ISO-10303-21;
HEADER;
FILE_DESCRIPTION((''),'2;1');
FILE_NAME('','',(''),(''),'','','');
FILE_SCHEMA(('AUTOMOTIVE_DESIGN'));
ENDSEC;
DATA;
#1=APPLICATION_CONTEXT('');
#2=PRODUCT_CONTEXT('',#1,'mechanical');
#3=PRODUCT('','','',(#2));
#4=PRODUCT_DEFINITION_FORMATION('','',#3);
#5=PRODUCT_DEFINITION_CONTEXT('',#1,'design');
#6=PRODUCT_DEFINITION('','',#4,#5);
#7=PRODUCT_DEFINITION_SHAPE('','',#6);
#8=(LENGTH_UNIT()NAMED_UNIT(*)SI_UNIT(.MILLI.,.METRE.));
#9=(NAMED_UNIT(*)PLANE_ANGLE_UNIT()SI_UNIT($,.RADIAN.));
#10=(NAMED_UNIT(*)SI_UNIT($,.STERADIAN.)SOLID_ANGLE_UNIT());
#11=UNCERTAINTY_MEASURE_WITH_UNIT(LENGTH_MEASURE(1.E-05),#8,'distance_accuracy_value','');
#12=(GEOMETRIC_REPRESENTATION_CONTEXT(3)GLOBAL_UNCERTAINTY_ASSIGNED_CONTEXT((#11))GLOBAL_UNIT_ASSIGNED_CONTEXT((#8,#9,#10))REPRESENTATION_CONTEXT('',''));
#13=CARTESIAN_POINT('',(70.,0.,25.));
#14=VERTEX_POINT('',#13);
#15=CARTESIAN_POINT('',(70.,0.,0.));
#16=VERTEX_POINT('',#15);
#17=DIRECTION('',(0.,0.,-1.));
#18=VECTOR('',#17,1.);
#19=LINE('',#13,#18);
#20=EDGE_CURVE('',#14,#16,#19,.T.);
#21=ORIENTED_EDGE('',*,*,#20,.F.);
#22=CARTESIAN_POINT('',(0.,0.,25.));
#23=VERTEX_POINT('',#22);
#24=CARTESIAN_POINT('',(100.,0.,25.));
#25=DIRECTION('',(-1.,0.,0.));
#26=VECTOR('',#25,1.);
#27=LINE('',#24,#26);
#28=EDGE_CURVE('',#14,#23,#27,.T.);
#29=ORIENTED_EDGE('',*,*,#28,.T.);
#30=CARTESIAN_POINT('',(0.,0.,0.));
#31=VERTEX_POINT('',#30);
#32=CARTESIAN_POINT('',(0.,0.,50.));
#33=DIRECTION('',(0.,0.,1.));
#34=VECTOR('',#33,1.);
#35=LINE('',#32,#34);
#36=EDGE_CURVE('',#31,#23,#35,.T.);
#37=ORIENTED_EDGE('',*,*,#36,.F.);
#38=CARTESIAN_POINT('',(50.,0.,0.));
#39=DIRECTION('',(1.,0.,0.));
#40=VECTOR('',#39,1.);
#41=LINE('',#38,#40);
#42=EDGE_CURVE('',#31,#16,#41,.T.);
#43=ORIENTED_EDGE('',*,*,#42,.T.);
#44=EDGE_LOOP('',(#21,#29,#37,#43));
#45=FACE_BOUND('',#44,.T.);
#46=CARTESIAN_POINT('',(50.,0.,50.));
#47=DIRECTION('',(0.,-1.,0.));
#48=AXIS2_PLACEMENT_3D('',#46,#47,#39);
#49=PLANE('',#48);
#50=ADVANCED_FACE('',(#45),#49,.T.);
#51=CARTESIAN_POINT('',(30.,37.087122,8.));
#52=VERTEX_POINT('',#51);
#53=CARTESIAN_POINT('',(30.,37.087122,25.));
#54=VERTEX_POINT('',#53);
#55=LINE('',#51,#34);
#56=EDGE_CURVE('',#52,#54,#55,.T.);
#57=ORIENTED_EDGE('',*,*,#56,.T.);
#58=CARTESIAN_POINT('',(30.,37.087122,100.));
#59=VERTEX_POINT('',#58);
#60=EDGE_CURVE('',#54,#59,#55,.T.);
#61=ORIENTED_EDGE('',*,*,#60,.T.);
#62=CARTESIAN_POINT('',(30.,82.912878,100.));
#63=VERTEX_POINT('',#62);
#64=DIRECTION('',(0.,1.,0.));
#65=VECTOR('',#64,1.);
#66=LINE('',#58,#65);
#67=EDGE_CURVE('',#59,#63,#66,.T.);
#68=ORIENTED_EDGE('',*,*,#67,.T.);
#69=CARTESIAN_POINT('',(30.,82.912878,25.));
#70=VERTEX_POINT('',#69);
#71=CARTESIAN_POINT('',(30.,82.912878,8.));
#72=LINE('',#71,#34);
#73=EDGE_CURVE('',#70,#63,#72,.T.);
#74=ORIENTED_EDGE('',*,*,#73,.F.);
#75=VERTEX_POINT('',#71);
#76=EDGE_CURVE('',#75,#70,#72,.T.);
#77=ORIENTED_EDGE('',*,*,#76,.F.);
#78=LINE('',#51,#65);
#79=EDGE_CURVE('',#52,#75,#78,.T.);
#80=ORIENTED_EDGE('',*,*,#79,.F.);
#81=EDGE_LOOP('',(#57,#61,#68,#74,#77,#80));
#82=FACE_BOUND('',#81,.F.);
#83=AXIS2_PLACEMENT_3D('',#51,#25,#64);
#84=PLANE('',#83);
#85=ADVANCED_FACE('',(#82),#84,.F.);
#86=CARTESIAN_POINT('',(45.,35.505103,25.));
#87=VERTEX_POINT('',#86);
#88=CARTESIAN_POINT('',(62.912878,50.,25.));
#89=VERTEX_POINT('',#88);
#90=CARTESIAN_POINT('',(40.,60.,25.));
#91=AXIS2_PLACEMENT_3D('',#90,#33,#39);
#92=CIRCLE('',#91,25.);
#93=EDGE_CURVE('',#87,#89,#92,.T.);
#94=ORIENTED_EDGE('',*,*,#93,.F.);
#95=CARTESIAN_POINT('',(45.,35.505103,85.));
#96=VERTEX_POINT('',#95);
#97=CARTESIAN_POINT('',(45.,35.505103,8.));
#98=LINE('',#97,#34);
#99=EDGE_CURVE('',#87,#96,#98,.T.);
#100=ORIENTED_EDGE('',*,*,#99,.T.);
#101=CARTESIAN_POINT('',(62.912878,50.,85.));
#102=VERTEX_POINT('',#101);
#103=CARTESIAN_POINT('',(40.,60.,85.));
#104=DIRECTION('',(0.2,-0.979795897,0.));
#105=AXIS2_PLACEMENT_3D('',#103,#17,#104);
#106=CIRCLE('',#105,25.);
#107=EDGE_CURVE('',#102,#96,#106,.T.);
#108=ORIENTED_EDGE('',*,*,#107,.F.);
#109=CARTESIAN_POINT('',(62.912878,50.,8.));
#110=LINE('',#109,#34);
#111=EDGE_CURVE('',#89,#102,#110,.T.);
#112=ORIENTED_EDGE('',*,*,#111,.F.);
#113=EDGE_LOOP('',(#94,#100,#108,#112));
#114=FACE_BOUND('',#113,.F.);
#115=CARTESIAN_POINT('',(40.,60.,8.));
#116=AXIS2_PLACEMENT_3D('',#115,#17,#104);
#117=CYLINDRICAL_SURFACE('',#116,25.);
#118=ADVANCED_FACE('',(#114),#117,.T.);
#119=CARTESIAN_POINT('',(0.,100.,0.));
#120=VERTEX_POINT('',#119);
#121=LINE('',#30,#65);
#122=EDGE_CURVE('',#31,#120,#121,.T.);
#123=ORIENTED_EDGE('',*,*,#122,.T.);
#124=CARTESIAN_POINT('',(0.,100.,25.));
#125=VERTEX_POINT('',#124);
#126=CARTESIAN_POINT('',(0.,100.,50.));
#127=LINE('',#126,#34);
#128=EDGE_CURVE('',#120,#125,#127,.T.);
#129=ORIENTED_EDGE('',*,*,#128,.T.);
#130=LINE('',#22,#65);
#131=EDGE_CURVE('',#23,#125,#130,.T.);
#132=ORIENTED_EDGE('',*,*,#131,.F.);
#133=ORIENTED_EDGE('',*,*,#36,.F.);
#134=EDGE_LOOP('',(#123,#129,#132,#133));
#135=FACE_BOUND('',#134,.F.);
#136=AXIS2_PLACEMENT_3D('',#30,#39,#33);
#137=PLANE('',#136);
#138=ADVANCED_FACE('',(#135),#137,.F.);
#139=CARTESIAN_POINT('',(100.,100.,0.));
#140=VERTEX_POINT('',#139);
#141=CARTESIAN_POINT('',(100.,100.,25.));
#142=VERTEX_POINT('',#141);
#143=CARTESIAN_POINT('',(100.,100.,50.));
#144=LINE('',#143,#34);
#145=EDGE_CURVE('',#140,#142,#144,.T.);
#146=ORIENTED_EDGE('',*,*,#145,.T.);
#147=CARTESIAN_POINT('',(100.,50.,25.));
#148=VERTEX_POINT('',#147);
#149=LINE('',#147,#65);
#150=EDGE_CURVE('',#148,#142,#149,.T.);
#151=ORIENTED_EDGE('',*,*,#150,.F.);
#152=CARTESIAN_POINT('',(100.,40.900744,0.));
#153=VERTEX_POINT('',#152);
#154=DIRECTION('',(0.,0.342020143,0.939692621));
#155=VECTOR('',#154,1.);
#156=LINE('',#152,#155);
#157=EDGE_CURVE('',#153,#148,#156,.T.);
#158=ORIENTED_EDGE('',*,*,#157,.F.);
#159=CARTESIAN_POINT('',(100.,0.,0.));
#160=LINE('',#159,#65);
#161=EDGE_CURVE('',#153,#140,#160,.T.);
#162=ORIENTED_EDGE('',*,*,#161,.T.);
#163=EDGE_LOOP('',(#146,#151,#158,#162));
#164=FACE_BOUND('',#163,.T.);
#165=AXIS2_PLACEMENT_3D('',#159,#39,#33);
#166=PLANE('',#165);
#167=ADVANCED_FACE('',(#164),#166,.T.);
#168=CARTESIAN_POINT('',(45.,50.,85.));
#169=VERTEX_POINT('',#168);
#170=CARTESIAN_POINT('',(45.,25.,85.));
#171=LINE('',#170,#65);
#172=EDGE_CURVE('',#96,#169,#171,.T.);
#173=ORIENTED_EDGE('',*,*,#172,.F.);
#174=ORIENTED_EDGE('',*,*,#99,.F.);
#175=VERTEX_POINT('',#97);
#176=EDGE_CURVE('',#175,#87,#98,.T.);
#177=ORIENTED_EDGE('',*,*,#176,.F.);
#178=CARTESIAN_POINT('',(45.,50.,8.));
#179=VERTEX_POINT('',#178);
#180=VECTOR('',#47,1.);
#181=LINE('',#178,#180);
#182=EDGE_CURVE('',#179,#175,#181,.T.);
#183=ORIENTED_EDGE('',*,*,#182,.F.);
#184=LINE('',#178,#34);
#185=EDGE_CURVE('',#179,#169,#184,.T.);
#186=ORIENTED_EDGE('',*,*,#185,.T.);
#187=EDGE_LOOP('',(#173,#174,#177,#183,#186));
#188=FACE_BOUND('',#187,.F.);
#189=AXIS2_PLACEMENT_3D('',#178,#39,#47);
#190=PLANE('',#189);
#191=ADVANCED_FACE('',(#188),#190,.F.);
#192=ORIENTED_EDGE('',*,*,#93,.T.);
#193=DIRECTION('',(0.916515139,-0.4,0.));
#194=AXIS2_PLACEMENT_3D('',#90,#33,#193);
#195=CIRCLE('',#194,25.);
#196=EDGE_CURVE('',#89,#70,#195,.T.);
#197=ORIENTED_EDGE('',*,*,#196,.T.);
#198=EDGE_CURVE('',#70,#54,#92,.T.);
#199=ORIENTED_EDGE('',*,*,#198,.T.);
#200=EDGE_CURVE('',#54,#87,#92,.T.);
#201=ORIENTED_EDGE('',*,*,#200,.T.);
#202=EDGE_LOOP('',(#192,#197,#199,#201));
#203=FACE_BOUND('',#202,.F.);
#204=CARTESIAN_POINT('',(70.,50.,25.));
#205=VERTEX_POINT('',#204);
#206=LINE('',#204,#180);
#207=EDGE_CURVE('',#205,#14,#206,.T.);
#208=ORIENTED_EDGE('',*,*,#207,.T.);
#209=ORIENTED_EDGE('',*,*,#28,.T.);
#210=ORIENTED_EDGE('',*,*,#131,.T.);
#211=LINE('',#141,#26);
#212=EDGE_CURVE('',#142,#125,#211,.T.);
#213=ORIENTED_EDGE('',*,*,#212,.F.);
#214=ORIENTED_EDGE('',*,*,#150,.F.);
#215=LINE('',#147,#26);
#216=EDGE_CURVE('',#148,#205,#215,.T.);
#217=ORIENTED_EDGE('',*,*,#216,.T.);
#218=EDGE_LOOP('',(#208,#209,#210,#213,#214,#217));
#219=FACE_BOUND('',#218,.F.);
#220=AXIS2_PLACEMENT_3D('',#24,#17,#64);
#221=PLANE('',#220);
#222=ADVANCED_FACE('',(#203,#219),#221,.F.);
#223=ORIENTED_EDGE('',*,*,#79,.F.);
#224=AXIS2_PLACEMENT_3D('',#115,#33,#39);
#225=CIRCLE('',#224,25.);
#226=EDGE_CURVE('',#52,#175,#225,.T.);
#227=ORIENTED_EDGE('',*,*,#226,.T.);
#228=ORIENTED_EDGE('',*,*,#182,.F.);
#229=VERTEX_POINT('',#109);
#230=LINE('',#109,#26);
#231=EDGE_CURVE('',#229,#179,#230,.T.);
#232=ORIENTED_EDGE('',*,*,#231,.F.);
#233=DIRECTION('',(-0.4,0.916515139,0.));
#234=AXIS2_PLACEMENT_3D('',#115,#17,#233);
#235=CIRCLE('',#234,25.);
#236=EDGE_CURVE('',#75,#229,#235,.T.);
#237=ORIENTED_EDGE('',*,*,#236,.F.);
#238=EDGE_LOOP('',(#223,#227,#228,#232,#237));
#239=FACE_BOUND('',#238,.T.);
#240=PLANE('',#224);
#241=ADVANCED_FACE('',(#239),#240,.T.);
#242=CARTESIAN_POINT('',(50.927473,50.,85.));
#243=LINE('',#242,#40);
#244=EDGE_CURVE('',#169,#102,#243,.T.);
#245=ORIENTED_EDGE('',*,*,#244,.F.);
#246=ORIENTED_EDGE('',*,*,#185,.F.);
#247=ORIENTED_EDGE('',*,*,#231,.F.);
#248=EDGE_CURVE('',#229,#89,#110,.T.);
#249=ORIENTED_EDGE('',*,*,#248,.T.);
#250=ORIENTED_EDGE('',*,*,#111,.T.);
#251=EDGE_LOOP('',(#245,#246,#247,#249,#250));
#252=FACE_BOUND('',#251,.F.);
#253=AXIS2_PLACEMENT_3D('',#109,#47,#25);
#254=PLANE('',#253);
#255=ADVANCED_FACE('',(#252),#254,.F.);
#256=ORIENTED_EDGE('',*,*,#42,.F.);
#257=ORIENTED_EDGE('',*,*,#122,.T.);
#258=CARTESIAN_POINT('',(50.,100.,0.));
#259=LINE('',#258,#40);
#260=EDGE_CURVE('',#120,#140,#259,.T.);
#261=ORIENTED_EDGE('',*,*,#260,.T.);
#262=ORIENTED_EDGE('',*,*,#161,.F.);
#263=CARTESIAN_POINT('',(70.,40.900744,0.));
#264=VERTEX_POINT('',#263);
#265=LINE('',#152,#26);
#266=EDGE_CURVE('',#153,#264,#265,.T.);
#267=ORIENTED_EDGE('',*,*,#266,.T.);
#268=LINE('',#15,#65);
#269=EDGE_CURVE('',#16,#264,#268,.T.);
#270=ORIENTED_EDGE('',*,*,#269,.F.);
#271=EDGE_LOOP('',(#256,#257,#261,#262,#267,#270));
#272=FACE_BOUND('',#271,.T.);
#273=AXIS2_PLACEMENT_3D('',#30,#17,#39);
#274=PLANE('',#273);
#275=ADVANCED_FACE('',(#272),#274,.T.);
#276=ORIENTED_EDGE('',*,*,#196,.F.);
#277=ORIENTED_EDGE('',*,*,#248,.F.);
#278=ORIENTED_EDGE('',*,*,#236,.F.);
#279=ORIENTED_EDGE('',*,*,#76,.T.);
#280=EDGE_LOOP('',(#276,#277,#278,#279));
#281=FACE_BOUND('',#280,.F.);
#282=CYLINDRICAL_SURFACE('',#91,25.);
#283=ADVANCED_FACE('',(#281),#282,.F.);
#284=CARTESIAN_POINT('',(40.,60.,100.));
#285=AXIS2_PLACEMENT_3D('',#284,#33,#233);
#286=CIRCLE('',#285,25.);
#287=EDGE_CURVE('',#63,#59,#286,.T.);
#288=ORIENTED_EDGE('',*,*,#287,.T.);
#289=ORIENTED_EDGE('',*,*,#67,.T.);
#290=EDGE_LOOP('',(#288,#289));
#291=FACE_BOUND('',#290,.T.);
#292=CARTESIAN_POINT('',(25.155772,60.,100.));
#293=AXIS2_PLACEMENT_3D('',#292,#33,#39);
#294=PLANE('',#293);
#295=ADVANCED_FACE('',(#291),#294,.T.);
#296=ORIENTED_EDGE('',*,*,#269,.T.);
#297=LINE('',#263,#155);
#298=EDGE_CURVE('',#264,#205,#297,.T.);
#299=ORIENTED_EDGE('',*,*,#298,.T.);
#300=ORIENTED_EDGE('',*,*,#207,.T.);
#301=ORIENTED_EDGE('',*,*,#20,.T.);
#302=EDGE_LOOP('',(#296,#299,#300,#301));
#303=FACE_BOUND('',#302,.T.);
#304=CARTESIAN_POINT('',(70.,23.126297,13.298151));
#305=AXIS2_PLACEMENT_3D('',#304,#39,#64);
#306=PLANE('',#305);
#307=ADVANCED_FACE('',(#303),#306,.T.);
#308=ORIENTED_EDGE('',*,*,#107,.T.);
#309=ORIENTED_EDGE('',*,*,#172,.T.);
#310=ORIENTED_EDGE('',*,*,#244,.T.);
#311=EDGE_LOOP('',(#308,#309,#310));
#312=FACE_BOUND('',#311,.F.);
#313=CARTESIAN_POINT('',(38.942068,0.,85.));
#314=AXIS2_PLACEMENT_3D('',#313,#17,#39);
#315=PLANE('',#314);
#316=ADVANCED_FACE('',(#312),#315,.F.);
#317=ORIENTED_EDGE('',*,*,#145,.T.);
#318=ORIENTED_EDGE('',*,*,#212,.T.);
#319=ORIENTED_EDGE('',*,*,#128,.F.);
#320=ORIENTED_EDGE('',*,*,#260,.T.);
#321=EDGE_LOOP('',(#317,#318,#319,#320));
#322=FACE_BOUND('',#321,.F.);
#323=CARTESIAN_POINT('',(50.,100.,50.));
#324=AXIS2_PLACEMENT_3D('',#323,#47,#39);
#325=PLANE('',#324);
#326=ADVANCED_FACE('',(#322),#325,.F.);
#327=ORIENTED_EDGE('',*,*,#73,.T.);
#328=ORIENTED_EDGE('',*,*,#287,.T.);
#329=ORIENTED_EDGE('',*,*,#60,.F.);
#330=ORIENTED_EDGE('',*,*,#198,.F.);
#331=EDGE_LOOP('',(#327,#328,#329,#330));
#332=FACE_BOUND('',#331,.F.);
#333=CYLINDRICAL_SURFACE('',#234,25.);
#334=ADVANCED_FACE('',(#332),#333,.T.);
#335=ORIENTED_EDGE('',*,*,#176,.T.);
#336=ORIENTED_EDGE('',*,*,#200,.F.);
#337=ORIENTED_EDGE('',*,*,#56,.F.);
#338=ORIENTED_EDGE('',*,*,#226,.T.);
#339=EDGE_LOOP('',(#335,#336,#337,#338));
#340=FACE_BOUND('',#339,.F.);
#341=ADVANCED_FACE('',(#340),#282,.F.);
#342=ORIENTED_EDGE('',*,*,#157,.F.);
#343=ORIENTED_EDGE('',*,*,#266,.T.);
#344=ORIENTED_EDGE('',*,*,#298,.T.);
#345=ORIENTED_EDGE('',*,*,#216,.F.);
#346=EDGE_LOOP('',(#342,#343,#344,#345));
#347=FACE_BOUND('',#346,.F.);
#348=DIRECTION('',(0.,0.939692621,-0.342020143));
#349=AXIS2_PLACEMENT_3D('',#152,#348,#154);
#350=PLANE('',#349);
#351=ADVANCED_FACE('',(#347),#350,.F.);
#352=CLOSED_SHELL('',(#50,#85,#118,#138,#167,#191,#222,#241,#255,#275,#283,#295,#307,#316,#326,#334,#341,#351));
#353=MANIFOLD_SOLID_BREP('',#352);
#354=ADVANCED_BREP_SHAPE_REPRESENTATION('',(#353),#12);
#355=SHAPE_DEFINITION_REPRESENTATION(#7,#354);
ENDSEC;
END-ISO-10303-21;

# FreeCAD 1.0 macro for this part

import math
import FreeCAD as App
import Part
import Sketcher
Q = App.Units.Quantity

doc = App.newDocument("Part")
body = doc.addObject("PartDesign::Body", "Body")

# Sketch on XZ plane
sketch1 = body.newObject("Sketcher::SketchObject", "Sketch")
sketch1.AttachmentSupport = (doc.getObject("XZ_Plane"), [""])
sketch1.MapMode = "FlatFace"
sketch1.addGeometry([
    Part.LineSegment(App.Vector(0, 100, 0), App.Vector(0, 0, 0)),
    Part.LineSegment(App.Vector(0, 0, 0), App.Vector(100, 0, 0)),
    Part.LineSegment(App.Vector(100, 0, 0), App.Vector(100, 100, 0)),
    Part.LineSegment(App.Vector(100, 100, 0), App.Vector(0, 100, 0)),
], False)
sketch1.addConstraint([
    Sketcher.Constraint("Coincident", 0, 2, 1, 1),
    Sketcher.Constraint("Coincident", 1, 2, 2, 1),
    Sketcher.Constraint("Coincident", 2, 2, 3, 1),
    Sketcher.Constraint("Coincident", 3, 2, 0, 1),
    Sketcher.Constraint("Vertical", 0),
    Sketcher.Constraint("Horizontal", 1),
    Sketcher.Constraint("Vertical", 2),
    Sketcher.Constraint("Horizontal", 3),
    Sketcher.Constraint("Coincident", 0, 2, -1, 1),
    Sketcher.Constraint("Equal", 3, 0),
    Sketcher.Constraint("DistanceX", 1, 1, 1, 2, 100.0),
])
pad1 = body.newObject("PartDesign::Pad", "Pad")
pad1.Profile = sketch1
pad1.Length = 100
pad1.Reversed = True

# Sketch on YZ plane
sketch2 = body.newObject("Sketcher::SketchObject", "Sketch001")
sketch2.AttachmentSupport = (doc.getObject("YZ_Plane"), [""])
sketch2.MapMode = "FlatFace"
sketch2.AttachmentOffset = App.Placement(App.Vector(0, 0, 100), App.Rotation())
sketch2.addGeometry([
    Part.LineSegment(App.Vector(0, 100, 0), App.Vector(0, 25, 0)),
    Part.LineSegment(App.Vector(0, 25, 0), App.Vector(100, 25, 0)),
    Part.LineSegment(App.Vector(100, 25, 0), App.Vector(100, 100, 0)),
    Part.LineSegment(App.Vector(100, 100, 0), App.Vector(0, 100, 0)),
], False)
sketch2.addConstraint([
    Sketcher.Constraint("Coincident", 0, 2, 1, 1),
    Sketcher.Constraint("Coincident", 1, 2, 2, 1),
    Sketcher.Constraint("Coincident", 2, 2, 3, 1),
    Sketcher.Constraint("Coincident", 3, 2, 0, 1),
    Sketcher.Constraint("Vertical", 0),
    Sketcher.Constraint("Horizontal", 1),
    Sketcher.Constraint("Vertical", 2),
    Sketcher.Constraint("Horizontal", 3),
    Sketcher.Constraint("PointOnObject", 0, 2, -2),
    Sketcher.Constraint("DistanceX", 1, 1, 1, 2, 100.0),
    Sketcher.Constraint("DistanceY", 0, 2, 0, 1, 75.0),
    Sketcher.Constraint("DistanceY", -1, 1, 0, 2, 25.0),
])
pocket1 = body.newObject("PartDesign::Pocket", "Pocket")
pocket1.Profile = sketch2
pocket1.Type = "ThroughAll"

# Sketch on XY plane
sketch3 = body.newObject("Sketcher::SketchObject", "Sketch002")
sketch3.AttachmentSupport = (doc.getObject("XY_Plane"), [""])
sketch3.MapMode = "FlatFace"
sketch3.AttachmentOffset = App.Placement(App.Vector(0, 0, 25), App.Rotation())
sketch3.addGeometry(Part.Circle(App.Vector(40, 60, 0), App.Vector(0, 0, 1), 25), False)
sketch3.addConstraint([
    Sketcher.Constraint("Diameter", 0, 50.0),
    Sketcher.Constraint("DistanceX", -1, 1, 0, 3, 40.0),
    Sketcher.Constraint("DistanceY", -1, 1, 0, 3, 60.0),
])
pocket2 = body.newObject("PartDesign::Pocket", "Pocket001")
pocket2.Profile = sketch3
pocket2.Length = 17

# Sketch on XY plane
sketch4 = body.newObject("Sketcher::SketchObject", "Sketch003")
sketch4.AttachmentSupport = (doc.getObject("XY_Plane"), [""])
sketch4.MapMode = "FlatFace"
sketch4.AttachmentOffset = App.Placement(App.Vector(0, 0, 8), App.Rotation())
sketch4.addGeometry([
    Part.LineSegment(App.Vector(30, 37.087122, 0), App.Vector(30, 82.912878, 0)),  # 0
    Part.ArcOfCircle(Part.Circle(App.Vector(40, 60, 0), App.Vector(0, 0, 1), 25), math.radians(113.578178), math.radians(246.421822)),  # 1
    Part.LineSegment(App.Vector(62.912878, 50, 0), App.Vector(45, 50, 0)),  # 2
    Part.LineSegment(App.Vector(45, 50, 0), App.Vector(45, 35.505103, 0)),  # 3
    Part.ArcOfCircle(Part.Circle(App.Vector(40, 60, 0), App.Vector(0, 0, 1), 25), math.radians(-78.463041), math.radians(-23.578178)),  # 4
], False)
sketch4.addConstraint([
    Sketcher.Constraint("Coincident", 0, 1, 1, 2),
    Sketcher.Constraint("Coincident", 1, 1, 0, 2),
    Sketcher.Constraint("Coincident", 2, 2, 3, 1),
    Sketcher.Constraint("Coincident", 3, 2, 4, 1),
    Sketcher.Constraint("Coincident", 4, 2, 2, 1),
    Sketcher.Constraint("Vertical", 0),
    Sketcher.Constraint("Horizontal", 2),
    Sketcher.Constraint("Vertical", 3),
    Sketcher.Constraint("Coincident", 4, 3, 1, 3),
    Sketcher.Constraint("Equal", 1, 4),
    Sketcher.Constraint("Radius", 1, 25.0),
    Sketcher.Constraint("DistanceX", -1, 1, 1, 3, 40.0),
    Sketcher.Constraint("DistanceY", -1, 1, 1, 3, 60.0),
    Sketcher.Constraint("DistanceX", -1, 1, 0, 1, 30.0),
    Sketcher.Constraint("DistanceX", -1, 1, 2, 2, 45.0),
    Sketcher.Constraint("DistanceY", -1, 1, 2, 2, 50.0),
])
pad2 = body.newObject("PartDesign::Pad", "Pad001")
pad2.Profile = sketch4
pad2.Length = 92

# Sketch on XZ plane
sketch5 = body.newObject("Sketcher::SketchObject", "Sketch004")
sketch5.AttachmentSupport = (doc.getObject("XZ_Plane"), [""])
sketch5.MapMode = "FlatFace"
sketch5.addGeometry([
    Part.LineSegment(App.Vector(38.942068, 117.923024, 0), App.Vector(38.942068, 85, 0)),
    Part.LineSegment(App.Vector(38.942068, 85, 0), App.Vector(69.711254, 85, 0)),
    Part.LineSegment(App.Vector(69.711254, 85, 0), App.Vector(69.711254, 117.923024, 0)),
    Part.LineSegment(App.Vector(69.711254, 117.923024, 0), App.Vector(38.942068, 117.923024, 0)),
], False)
sketch5.addConstraint([
    Sketcher.Constraint("Coincident", 0, 2, 1, 1),
    Sketcher.Constraint("Coincident", 1, 2, 2, 1),
    Sketcher.Constraint("Coincident", 2, 2, 3, 1),
    Sketcher.Constraint("Coincident", 3, 2, 0, 1),
    Sketcher.Constraint("Vertical", 0),
    Sketcher.Constraint("Horizontal", 1),
    Sketcher.Constraint("Vertical", 2),
    Sketcher.Constraint("Horizontal", 3),
    Sketcher.Constraint("DistanceY", -1, 1, 0, 2, 85.0),
    Sketcher.Constraint("DistanceX", 1, 1, 1, 2, 30.769187),
    Sketcher.Constraint("DistanceY", 0, 2, 0, 1, 32.923024),
    Sketcher.Constraint("DistanceX", -1, 1, 0, 2, 38.942068),
])
pocket3 = body.newObject("PartDesign::Pocket", "Pocket002")
pocket3.Profile = sketch5
pocket3.Type = "ThroughAll"

# Sketch on YZ plane
sketch6 = body.newObject("Sketcher::SketchObject", "Sketch005")
sketch6.AttachmentSupport = (doc.getObject("YZ_Plane"), [""])
sketch6.MapMode = "FlatFace"
sketch6.AttachmentOffset = App.Placement(App.Vector(0, 0, 100), App.Rotation())
sketch6.addGeometry([
    Part.LineSegment(App.Vector(40.900744, 0, 0), App.Vector(50, 25, 0)),
    Part.LineSegment(App.Vector(50, 25, 0), App.Vector(0, 25, 0)),
    Part.LineSegment(App.Vector(0, 25, 0), App.Vector(0, 0, 0)),
    Part.LineSegment(App.Vector(0, 0, 0), App.Vector(40.900744, 0, 0)),
], False)
sketch6.addConstraint([
    Sketcher.Constraint("Coincident", 0, 2, 1, 1),
    Sketcher.Constraint("Coincident", 1, 2, 2, 1),
    Sketcher.Constraint("Coincident", 2, 2, 3, 1),
    Sketcher.Constraint("Coincident", 3, 2, 0, 1),
    Sketcher.Constraint("Horizontal", 1),
    Sketcher.Constraint("Vertical", 2),
    Sketcher.Constraint("Horizontal", 3),
    Sketcher.Constraint("Coincident", 2, 2, -1, 1),
    Sketcher.Constraint("DistanceX", 1, 2, 1, 1, 50.0),
    Sketcher.Constraint("DistanceY", 2, 2, 2, 1, 25.0),
    Sketcher.Constraint("Angle", 0, Q("70 deg")),
])
pocket4 = body.newObject("PartDesign::Pocket", "Pocket003")
pocket4.Profile = sketch6
pocket4.Length = 30

doc.recompute()
